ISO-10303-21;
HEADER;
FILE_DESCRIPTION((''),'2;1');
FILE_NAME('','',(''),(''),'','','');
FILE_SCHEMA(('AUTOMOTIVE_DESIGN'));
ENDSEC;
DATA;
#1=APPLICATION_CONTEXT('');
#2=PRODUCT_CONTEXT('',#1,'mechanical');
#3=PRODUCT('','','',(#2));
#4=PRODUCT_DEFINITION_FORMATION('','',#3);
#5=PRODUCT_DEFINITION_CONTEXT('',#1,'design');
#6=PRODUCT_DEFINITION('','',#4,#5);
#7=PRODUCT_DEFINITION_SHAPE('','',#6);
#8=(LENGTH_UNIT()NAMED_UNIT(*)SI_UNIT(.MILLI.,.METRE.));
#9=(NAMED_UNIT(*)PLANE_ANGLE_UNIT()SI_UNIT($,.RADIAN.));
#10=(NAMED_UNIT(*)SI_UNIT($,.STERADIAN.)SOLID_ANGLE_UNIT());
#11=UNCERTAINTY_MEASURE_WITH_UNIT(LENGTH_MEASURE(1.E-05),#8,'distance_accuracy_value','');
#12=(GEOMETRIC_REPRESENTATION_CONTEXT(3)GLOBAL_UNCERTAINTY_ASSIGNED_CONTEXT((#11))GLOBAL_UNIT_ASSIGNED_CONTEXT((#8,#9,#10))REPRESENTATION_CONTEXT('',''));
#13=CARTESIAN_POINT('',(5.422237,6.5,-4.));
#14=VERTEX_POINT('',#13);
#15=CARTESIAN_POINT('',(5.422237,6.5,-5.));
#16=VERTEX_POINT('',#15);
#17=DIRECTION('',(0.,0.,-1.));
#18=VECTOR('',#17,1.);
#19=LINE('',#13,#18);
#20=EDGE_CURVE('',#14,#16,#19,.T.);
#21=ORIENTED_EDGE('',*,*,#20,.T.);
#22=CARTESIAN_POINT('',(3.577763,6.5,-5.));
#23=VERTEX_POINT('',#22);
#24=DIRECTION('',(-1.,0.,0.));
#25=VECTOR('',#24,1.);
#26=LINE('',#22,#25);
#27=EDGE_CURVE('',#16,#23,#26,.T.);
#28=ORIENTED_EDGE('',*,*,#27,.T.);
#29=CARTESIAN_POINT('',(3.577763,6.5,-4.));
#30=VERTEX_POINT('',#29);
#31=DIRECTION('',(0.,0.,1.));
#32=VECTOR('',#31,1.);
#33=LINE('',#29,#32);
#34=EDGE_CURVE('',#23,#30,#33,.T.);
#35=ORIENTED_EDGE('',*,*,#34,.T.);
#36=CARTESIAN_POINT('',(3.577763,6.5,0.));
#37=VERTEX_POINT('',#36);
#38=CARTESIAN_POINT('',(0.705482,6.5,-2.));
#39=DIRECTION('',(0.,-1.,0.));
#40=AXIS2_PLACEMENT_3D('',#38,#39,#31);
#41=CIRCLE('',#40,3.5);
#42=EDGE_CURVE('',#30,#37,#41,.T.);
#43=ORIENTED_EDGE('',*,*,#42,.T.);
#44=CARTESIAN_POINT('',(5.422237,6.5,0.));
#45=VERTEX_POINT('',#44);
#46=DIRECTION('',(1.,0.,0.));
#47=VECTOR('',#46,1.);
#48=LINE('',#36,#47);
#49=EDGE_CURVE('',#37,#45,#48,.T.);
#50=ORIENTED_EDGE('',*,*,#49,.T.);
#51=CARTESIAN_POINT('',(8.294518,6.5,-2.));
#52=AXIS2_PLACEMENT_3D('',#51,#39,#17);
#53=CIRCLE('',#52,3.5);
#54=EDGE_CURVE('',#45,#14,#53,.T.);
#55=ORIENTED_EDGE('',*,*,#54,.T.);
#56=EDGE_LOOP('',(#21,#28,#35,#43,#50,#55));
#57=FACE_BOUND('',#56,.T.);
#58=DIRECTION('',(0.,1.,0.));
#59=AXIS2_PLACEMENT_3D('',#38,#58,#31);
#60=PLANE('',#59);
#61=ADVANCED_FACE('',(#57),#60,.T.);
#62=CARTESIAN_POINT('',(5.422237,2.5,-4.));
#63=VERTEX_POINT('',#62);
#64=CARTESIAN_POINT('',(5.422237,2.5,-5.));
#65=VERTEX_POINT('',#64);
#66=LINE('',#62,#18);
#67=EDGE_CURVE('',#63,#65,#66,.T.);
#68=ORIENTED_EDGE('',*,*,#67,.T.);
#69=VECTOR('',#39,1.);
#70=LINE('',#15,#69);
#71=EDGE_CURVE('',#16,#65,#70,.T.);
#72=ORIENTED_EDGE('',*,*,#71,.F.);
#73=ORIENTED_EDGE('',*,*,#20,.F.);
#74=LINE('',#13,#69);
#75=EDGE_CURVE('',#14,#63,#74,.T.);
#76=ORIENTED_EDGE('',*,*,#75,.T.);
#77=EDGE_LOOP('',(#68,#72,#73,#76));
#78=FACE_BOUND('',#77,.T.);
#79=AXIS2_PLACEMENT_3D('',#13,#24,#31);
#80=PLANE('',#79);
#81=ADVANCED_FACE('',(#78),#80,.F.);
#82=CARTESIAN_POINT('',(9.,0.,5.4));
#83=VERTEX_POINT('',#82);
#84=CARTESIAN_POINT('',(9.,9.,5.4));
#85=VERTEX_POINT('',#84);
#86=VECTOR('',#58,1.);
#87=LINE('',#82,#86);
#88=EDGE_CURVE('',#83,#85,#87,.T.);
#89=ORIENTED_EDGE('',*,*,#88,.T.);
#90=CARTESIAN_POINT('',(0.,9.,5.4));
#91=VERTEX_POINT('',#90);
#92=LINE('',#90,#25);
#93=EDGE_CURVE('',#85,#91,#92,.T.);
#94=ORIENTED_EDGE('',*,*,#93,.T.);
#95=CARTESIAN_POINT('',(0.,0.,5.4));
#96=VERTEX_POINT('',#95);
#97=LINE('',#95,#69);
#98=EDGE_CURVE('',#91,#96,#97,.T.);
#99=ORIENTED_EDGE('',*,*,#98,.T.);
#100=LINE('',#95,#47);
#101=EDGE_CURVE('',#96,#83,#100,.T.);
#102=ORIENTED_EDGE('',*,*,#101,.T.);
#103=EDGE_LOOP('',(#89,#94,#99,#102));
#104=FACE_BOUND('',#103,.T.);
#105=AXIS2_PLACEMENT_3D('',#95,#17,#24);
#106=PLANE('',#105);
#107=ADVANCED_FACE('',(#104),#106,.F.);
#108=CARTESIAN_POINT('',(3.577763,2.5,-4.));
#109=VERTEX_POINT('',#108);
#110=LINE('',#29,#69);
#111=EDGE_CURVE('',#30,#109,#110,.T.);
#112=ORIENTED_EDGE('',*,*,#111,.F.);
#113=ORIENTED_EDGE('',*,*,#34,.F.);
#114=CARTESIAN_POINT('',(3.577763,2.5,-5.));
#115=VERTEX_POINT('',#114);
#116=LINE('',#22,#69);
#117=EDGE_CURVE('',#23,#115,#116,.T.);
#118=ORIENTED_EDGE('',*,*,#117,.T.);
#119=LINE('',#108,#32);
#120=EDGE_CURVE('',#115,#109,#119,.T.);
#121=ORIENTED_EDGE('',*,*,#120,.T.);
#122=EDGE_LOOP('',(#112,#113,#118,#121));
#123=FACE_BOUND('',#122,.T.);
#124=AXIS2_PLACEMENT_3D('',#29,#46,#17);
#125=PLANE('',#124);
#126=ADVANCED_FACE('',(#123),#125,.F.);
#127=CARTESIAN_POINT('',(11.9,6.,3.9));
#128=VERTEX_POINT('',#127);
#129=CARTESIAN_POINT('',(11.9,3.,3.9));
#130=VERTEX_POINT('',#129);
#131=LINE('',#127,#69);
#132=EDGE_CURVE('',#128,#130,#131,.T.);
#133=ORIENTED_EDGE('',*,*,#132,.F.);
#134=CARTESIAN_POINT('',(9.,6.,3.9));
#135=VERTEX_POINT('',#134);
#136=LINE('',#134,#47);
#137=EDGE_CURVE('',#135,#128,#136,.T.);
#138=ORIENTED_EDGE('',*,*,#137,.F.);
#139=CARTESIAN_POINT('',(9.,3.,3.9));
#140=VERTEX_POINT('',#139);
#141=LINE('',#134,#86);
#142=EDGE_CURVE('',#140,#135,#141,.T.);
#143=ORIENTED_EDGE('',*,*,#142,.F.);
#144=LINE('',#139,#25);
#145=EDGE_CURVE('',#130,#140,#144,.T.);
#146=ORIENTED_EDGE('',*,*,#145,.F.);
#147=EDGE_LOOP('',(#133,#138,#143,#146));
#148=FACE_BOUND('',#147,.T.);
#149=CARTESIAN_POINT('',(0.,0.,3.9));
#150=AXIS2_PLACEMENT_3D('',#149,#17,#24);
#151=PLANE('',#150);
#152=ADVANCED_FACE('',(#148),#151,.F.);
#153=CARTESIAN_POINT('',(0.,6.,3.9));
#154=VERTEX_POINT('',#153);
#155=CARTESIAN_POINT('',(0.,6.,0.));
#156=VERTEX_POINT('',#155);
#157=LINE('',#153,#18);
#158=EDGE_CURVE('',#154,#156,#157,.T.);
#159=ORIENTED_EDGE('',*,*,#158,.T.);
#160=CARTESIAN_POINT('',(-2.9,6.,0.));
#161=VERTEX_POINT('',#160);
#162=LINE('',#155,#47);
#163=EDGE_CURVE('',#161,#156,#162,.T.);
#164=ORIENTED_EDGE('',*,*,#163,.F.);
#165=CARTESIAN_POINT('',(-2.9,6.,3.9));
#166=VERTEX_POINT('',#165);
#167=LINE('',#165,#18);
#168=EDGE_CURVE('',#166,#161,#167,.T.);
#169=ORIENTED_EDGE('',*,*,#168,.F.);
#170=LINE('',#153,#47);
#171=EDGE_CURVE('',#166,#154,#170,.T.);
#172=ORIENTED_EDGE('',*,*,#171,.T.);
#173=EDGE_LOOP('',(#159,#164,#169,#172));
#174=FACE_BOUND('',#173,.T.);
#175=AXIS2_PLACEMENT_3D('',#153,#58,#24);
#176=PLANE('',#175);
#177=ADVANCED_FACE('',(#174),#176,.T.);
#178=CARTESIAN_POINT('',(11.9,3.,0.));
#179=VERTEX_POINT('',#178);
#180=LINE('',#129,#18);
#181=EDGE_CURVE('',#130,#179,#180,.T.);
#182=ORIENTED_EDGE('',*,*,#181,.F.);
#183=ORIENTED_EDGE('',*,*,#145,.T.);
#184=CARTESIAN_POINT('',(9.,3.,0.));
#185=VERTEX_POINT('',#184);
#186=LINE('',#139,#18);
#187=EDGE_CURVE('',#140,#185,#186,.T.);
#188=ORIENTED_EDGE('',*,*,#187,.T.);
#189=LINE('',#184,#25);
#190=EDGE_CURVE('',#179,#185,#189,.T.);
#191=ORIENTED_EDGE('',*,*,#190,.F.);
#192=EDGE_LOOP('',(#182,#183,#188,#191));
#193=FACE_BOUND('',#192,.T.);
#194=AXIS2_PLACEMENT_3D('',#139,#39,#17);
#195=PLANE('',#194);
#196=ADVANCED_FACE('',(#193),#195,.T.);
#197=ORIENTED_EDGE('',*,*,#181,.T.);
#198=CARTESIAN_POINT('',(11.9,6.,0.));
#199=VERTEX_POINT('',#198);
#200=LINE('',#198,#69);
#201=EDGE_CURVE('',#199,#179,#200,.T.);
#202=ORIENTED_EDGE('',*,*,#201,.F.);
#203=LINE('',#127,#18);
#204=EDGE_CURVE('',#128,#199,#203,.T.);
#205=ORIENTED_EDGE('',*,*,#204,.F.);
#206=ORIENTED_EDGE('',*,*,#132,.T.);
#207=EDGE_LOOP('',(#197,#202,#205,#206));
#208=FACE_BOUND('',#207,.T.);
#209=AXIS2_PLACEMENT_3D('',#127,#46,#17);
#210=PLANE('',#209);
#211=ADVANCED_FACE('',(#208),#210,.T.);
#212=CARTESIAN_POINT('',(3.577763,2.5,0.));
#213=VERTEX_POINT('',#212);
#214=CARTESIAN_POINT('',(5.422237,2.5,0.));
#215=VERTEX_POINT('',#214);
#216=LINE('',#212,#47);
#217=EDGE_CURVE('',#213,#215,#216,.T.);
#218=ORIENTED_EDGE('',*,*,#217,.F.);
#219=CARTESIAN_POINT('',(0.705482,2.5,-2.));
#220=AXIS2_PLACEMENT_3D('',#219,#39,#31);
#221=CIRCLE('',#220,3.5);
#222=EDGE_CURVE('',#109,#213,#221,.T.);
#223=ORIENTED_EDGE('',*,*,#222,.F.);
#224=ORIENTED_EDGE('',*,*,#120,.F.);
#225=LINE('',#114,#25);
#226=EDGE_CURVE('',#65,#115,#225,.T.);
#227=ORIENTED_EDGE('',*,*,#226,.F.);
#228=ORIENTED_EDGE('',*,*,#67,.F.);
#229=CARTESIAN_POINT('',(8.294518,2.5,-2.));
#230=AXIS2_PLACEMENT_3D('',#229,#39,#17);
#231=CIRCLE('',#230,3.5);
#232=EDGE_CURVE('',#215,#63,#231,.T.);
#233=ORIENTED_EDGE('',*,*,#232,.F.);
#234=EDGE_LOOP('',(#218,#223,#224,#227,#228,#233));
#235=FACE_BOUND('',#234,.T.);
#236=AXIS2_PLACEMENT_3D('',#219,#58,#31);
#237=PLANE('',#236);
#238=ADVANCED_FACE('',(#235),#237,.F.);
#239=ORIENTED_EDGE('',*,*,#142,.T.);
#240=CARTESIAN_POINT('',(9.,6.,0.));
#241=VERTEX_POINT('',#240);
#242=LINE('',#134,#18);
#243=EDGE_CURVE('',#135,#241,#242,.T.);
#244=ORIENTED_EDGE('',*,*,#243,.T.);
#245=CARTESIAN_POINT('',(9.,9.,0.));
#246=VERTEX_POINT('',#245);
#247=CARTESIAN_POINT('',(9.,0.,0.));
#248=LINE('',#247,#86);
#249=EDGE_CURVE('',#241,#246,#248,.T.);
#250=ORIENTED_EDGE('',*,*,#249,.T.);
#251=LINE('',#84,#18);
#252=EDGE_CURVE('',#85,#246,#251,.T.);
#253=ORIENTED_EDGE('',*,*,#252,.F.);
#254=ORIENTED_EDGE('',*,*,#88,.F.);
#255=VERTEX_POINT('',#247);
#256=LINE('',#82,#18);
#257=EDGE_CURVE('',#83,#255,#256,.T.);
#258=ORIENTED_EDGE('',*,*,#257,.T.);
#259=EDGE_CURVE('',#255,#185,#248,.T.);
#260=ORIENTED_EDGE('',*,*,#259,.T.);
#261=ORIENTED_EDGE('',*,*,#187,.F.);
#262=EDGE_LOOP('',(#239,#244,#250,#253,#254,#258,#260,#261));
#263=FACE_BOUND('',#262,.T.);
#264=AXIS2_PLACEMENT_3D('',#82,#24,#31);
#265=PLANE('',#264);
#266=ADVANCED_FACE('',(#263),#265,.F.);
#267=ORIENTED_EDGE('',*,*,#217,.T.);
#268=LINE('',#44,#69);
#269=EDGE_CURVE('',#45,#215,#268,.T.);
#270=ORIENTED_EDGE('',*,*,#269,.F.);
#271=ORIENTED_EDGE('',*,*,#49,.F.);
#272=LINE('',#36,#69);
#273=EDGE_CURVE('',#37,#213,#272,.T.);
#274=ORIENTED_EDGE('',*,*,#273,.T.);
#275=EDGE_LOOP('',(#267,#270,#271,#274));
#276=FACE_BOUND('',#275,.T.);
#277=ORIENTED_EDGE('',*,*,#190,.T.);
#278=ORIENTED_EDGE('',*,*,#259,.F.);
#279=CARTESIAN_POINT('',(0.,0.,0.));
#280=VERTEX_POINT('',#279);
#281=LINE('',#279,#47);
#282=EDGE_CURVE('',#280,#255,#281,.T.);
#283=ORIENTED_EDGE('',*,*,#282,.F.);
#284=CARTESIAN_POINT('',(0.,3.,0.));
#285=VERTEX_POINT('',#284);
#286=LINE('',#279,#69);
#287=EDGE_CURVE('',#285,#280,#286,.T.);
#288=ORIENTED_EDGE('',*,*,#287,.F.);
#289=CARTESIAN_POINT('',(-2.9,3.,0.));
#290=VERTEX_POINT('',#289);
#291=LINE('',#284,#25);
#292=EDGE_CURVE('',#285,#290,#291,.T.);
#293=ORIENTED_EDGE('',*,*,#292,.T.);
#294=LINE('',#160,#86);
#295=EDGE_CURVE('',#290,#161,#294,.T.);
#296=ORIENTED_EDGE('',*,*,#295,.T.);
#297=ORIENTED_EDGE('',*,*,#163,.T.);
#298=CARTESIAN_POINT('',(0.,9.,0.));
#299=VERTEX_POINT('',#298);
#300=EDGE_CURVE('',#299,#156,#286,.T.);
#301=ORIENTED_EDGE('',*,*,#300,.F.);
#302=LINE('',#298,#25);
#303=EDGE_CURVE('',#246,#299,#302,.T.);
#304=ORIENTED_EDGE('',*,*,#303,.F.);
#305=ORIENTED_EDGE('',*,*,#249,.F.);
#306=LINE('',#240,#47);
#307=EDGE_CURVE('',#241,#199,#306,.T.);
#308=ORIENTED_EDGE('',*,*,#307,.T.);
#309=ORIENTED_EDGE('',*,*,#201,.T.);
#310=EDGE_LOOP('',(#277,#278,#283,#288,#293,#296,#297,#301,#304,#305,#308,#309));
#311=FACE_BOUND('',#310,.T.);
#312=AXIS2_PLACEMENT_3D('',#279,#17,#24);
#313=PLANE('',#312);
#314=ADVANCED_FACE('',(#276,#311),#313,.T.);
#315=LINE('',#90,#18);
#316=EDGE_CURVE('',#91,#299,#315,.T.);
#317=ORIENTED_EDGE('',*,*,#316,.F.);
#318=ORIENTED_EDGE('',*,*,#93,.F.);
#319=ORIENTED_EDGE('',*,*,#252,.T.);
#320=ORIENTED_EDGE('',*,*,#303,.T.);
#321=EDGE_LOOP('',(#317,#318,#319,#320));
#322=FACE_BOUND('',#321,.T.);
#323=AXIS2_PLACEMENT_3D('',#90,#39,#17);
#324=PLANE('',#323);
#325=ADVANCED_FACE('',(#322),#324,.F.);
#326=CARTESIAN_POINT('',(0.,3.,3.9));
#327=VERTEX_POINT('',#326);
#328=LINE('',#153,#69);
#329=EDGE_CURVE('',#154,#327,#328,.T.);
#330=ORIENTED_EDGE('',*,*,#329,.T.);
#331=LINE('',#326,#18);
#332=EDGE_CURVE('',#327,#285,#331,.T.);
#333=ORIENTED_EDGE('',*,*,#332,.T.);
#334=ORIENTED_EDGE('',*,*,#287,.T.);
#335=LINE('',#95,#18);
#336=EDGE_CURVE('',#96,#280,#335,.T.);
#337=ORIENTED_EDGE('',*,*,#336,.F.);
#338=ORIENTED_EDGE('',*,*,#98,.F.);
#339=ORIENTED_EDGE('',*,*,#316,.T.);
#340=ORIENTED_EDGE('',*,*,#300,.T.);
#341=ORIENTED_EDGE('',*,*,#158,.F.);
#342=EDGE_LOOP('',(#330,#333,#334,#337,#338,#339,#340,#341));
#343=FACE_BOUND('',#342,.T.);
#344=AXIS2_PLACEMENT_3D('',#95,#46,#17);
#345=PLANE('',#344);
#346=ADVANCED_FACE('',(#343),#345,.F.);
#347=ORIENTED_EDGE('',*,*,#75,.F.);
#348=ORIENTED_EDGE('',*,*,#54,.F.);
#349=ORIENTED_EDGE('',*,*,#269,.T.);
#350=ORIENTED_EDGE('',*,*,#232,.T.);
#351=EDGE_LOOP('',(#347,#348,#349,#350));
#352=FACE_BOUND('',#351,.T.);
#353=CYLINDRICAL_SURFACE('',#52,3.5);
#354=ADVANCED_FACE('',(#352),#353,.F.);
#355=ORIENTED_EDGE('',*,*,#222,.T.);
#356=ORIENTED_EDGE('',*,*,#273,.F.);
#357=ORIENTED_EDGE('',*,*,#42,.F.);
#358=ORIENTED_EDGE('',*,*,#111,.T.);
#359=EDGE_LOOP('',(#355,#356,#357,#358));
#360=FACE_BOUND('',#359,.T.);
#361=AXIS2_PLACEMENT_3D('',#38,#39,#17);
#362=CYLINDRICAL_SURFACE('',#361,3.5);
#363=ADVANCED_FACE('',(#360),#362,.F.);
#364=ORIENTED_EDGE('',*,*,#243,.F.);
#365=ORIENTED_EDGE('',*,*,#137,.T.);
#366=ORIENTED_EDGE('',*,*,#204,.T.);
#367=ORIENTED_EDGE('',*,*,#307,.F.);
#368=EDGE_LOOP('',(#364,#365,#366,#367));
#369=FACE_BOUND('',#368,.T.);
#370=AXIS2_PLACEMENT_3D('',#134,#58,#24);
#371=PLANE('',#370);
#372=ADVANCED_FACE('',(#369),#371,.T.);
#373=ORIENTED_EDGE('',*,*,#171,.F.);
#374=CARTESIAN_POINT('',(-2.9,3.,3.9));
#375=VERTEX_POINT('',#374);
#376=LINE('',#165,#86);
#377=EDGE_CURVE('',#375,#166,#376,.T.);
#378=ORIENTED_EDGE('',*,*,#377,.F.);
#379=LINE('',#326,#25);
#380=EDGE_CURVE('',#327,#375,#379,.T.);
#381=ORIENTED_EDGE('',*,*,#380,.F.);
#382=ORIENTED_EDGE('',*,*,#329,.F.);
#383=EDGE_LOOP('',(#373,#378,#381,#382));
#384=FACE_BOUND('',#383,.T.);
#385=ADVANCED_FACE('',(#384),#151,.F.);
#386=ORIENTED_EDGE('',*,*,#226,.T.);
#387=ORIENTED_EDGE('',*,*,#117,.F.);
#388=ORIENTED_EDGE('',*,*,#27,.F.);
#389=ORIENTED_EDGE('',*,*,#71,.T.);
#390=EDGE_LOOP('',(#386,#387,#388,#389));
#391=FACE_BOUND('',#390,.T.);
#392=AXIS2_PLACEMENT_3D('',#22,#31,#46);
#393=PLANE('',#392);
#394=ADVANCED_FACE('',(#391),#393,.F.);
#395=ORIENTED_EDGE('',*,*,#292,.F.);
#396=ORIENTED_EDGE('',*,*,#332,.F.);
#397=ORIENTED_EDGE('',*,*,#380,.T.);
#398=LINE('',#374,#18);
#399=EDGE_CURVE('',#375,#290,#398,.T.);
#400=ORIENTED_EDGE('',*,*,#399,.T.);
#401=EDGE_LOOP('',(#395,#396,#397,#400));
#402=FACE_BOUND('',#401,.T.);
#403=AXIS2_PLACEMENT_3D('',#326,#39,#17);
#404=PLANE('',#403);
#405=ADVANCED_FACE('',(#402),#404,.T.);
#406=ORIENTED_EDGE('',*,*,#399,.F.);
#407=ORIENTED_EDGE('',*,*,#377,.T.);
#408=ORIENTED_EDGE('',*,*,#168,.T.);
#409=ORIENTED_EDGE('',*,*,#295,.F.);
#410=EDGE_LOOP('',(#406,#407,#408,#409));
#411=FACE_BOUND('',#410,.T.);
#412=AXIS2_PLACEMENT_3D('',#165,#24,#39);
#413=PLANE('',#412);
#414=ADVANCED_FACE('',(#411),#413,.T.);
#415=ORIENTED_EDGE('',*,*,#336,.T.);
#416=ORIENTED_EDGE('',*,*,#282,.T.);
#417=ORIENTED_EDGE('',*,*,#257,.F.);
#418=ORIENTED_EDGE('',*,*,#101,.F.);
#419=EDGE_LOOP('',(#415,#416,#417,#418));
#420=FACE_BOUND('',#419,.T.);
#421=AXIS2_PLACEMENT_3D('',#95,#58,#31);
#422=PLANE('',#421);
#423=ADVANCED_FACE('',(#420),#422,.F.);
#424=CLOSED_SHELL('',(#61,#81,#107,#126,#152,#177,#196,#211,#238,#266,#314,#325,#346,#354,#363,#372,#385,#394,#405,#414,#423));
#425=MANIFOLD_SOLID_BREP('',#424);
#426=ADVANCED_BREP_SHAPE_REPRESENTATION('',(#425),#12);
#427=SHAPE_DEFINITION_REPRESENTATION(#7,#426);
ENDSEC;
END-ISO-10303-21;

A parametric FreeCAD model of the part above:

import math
import FreeCAD as App
import Part
import Sketcher

V = App.Vector


def add_polygon(sketch, points):
    """Adds a closed chain of lines whose ends are joined by coincident constraints."""
    first, n = sketch.GeometryCount, len(points)
    for a, b in zip(points, points[1:] + points[:1]):
        sketch.addGeometry(Part.LineSegment(App.Vector(*a, 0), App.Vector(*b, 0)), False)
    for i in range(n):
        sketch.addConstraint(Sketcher.Constraint("Coincident", first + i, 2, first + (i + 1) % n, 1))

doc = App.newDocument("Part")
body = doc.addObject("PartDesign::Body", "Body")

# Sketch on XY plane
sketch1 = body.newObject("Sketcher::SketchObject", "Sketch")
sketch1.AttachmentSupport = (doc.getObject("XY_Plane"), [""])
sketch1.MapMode = "FlatFace"
add_polygon(sketch1, [(0, 9), (0, 0), (9, 0), (9, 9)])  # lines 0-3
sketch1.addConstraint([
    Sketcher.Constraint("Vertical", 0),
    Sketcher.Constraint("Horizontal", 1),
    Sketcher.Constraint("Vertical", 2),
    Sketcher.Constraint("Horizontal", 3),
    Sketcher.Constraint("Coincident", 0, 2, -1, 1),
    Sketcher.Constraint("Equal", 3, 0),
    Sketcher.Constraint("DistanceX", 1, 1, 1, 2, 9.0),
])
pad1 = body.newObject("PartDesign::Pad", "Pad")
pad1.Profile = sketch1
pad1.Length = 5.4

# Sketch on XY plane
sketch2 = body.newObject("Sketcher::SketchObject", "Sketch001")
sketch2.AttachmentSupport = (doc.getObject("XY_Plane"), [""])
sketch2.MapMode = "FlatFace"
add_polygon(sketch2, [(0, 6), (0, 3), (-2.9, 3), (-2.9, 6)])  # lines 0-3
add_polygon(sketch2, [(11.9, 6), (11.9, 3), (9, 3), (9, 6)])  # lines 4-7
sketch2.addConstraint([
    Sketcher.Constraint("Vertical", 0),
    Sketcher.Constraint("Horizontal", 1),
    Sketcher.Constraint("Vertical", 2),
    Sketcher.Constraint("Horizontal", 3),
    Sketcher.Constraint("Vertical", 4),
    Sketcher.Constraint("Horizontal", 5),
    Sketcher.Constraint("Vertical", 6),
    Sketcher.Constraint("Horizontal", 7),
    Sketcher.Constraint("PointOnObject", 0, 2, -2),
    Sketcher.Constraint("Horizontal", 1, 2, 4, 2),
    Sketcher.Constraint("Horizontal", 3, 2, 6, 2),
    Sketcher.Constraint("Equal", 3, 5),
    Sketcher.Constraint("DistanceY", 0, 2, 0, 1, 3.0),
    Sketcher.Constraint("DistanceX", 1, 2, 1, 1, 2.9),
    Sketcher.Constraint("DistanceY", -1, 1, 0, 2, 3.0),
    Sketcher.Constraint("DistanceX", -1, 1, 5, 2, 9.0),
])
pad2 = body.newObject("PartDesign::Pad", "Pad001")
pad2.Profile = sketch2
pad2.Length = 3.9

# Sketch on XZ plane
sketch3 = body.newObject("Sketcher::SketchObject", "Sketch002")
sketch3.AttachmentSupport = (doc.getObject("XZ_Plane"), [""])
sketch3.MapMode = "FlatFace"
sketch3.AttachmentOffset = App.Placement(V(0, 0, -4.5), App.Rotation())
sketch3.addGeometry([
    Part.LineSegment(V(3.6, -5, 0), V(3.6, -4, 0)),  # 0
    Part.ArcOfCircle(Part.Circle(V(0.7, -2, 0), V(0, 0, 1), 3.5), math.radians(-35), math.radians(35)),  # 1
    Part.LineSegment(V(3.6, 0, 0), V(5.4, 0, 0)),  # 2
    Part.ArcOfCircle(Part.Circle(V(8.3, -2, 0), V(0, 0, 1), 3.5), math.radians(145), math.radians(215)),  # 3
    Part.LineSegment(V(5.4, -4, 0), V(5.4, -5, 0)),  # 4
    Part.LineSegment(V(5.4, -5, 0), V(3.6, -5, 0)),  # 5
], False)
sketch3.addConstraint([
    Sketcher.Constraint("Coincident", 0, 2, 1, 1),
    Sketcher.Constraint("Coincident", 1, 2, 2, 1),
    Sketcher.Constraint("Coincident", 2, 2, 3, 1),
    Sketcher.Constraint("Coincident", 3, 2, 4, 1),
    Sketcher.Constraint("Coincident", 4, 2, 5, 1),
    Sketcher.Constraint("Coincident", 5, 2, 0, 1),
    Sketcher.Constraint("Vertical", 0),
    Sketcher.Constraint("Horizontal", 2),
    Sketcher.Constraint("Vertical", 4),
    Sketcher.Constraint("Horizontal", 5),
    Sketcher.Constraint("Equal", 1, 3),
    Sketcher.Constraint("PointOnObject", 1, 2, -1),
    Sketcher.Constraint("Horizontal", 1, 3, 3, 3),
    Sketcher.Constraint("Horizontal", 0, 2, 3, 2),
    Sketcher.Constraint("Vertical", 0, 2, 1, 2),
    Sketcher.Constraint("Radius", 1, 3.5),
    Sketcher.Constraint("DistanceY", 0, 1, 0, 2, 1.0),
    Sketcher.Constraint("DistanceY", 1, 3, -1, 1, 2.0),
    Sketcher.Constraint("DistanceX", 2, 1, 2, 2, 1.844474),
    Sketcher.Constraint("DistanceX", -1, 1, 1, 3, 0.705482),
])
pad3 = body.newObject("PartDesign::Pad", "Pad002")
pad3.Profile = sketch3
pad3.Length = 4
pad3.Midplane = True

doc.recompute()
